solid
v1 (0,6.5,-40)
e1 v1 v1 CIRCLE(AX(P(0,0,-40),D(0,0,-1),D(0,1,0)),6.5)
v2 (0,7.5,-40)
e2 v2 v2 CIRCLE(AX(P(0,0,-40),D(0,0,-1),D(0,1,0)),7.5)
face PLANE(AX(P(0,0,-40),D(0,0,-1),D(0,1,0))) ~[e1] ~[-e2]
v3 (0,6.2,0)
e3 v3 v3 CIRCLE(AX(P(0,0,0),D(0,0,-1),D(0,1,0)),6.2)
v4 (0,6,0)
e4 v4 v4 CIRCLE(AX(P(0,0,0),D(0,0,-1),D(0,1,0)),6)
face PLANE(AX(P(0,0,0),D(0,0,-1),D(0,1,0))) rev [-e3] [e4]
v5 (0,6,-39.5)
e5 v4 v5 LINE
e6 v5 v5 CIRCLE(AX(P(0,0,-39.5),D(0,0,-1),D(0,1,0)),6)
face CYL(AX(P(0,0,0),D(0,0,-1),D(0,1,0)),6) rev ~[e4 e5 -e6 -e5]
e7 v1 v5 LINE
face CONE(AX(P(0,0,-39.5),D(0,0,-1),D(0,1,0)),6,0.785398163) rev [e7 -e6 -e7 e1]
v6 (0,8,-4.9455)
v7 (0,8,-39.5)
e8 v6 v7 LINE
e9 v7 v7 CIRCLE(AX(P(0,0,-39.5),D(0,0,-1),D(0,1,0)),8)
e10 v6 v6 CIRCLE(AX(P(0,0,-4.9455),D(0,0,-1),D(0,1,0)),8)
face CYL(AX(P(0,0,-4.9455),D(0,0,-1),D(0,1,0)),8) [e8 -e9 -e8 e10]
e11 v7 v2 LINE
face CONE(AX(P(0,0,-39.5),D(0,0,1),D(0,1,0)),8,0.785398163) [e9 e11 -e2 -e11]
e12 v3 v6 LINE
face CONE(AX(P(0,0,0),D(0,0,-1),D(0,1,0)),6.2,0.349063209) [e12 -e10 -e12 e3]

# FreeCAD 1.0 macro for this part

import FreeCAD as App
import Part
import Sketcher

V = App.Vector
Q = App.Units.Quantity


def edges_at(feature, points):
    """Names of the edges that pass closest to the given points."""
    edges = feature.Shape.Edges
    near = lambda p: min(range(len(edges)), key=lambda i: edges[i].distToShape(Part.Vertex(*p))[0])
    return sorted({f"Edge{near(p) + 1}" for p in points})

doc = App.newDocument("Part")
params = doc.addObject("Spreadsheet::Sheet", "Params")
for row, (alias, value) in enumerate([
    ("sketch1_width", "2 mm"),
    ("sketch1_height", "40 mm"),
    ("sketch1_width2", "0.2 mm"),
    ("revolution_angle", "360 deg"),
    ("chamfer_size", "0.5 mm"),
], start=1):
    params.set(f"A{row}", alias)
    params.set(f"B{row}", "=" + value)
    params.setAlias(f"B{row}", alias)

body = doc.addObject("PartDesign::Body", "Body")

# Sketch on YZ plane
sketch1 = body.newObject("Sketcher::SketchObject", "Sketch")
sketch1.AttachmentSupport = (doc.getObject("YZ_Plane"), [""])
sketch1.MapMode = "FlatFace"
sketch1.addGeometry(Part.LineSegment(V(6.2, 0, 0), V(6, 0, 0)), False)
sketch1.addGeometry(Part.LineSegment(V(6, 0, 0), V(6, -40, 0)), False)
sketch1.addGeometry(Part.LineSegment(V(6, -40, 0), V(8, -40, 0)), False)
sketch1.addGeometry(Part.LineSegment(V(8, -40, 0), V(8, -4.95, 0)), False)
sketch1.addGeometry(Part.LineSegment(V(8, -4.95, 0), V(6.2, 0, 0)), False)
sketch1.addConstraint(Sketcher.Constraint("Coincident", 0, 2, 1, 1))
sketch1.addConstraint(Sketcher.Constraint("Coincident", 1, 2, 2, 1))
sketch1.addConstraint(Sketcher.Constraint("Coincident", 2, 2, 3, 1))
sketch1.addConstraint(Sketcher.Constraint("Coincident", 3, 2, 4, 1))
sketch1.addConstraint(Sketcher.Constraint("Coincident", 4, 2, 0, 1))
sketch1.addConstraint(Sketcher.Constraint("Horizontal", 0))
sketch1.addConstraint(Sketcher.Constraint("Vertical", 1))
sketch1.addConstraint(Sketcher.Constraint("Horizontal", 2))
sketch1.addConstraint(Sketcher.Constraint("Vertical", 3))
sketch1.addConstraint(Sketcher.Constraint("PointOnObject", 0, 2, -1))
sketch1.addConstraint(Sketcher.Constraint("DistanceX", 2, 1, 2, 2, Q("2 mm")))
sketch1.addConstraint(Sketcher.Constraint("DistanceY", 1, 2, 1, 1, Q("40 mm")))
sketch1.addConstraint(Sketcher.Constraint("DistanceX", 0, 2, 0, 1, Q("0.2 mm")))
sketch1.addConstraint(Sketcher.Constraint("Angle", 4, Q("109.9998 deg")))
sketch1.addConstraint(Sketcher.Constraint("DistanceX", -1, 1, 0, 2, Q("6 mm")))
sketch1.setExpression("Constraints[10]", "Params.sketch1_width")
sketch1.setExpression("Constraints[11]", "Params.sketch1_height")
sketch1.setExpression("Constraints[12]", "Params.sketch1_width2")
revolution = body.newObject("PartDesign::Revolution", "Revolution")
revolution.Profile = sketch1
revolution.ReferenceAxis = (sketch1, ["V_Axis"])
revolution.setExpression("Angle", "Params.revolution_angle")
doc.recompute()

chamfer = body.newObject("PartDesign::Chamfer", "Chamfer")
chamfer.Base = (revolution, edges_at(revolution, [(0, -6, -40), (0, -8, -40)]))
chamfer.setExpression("Size", "Params.chamfer_size")

doc.recompute()
